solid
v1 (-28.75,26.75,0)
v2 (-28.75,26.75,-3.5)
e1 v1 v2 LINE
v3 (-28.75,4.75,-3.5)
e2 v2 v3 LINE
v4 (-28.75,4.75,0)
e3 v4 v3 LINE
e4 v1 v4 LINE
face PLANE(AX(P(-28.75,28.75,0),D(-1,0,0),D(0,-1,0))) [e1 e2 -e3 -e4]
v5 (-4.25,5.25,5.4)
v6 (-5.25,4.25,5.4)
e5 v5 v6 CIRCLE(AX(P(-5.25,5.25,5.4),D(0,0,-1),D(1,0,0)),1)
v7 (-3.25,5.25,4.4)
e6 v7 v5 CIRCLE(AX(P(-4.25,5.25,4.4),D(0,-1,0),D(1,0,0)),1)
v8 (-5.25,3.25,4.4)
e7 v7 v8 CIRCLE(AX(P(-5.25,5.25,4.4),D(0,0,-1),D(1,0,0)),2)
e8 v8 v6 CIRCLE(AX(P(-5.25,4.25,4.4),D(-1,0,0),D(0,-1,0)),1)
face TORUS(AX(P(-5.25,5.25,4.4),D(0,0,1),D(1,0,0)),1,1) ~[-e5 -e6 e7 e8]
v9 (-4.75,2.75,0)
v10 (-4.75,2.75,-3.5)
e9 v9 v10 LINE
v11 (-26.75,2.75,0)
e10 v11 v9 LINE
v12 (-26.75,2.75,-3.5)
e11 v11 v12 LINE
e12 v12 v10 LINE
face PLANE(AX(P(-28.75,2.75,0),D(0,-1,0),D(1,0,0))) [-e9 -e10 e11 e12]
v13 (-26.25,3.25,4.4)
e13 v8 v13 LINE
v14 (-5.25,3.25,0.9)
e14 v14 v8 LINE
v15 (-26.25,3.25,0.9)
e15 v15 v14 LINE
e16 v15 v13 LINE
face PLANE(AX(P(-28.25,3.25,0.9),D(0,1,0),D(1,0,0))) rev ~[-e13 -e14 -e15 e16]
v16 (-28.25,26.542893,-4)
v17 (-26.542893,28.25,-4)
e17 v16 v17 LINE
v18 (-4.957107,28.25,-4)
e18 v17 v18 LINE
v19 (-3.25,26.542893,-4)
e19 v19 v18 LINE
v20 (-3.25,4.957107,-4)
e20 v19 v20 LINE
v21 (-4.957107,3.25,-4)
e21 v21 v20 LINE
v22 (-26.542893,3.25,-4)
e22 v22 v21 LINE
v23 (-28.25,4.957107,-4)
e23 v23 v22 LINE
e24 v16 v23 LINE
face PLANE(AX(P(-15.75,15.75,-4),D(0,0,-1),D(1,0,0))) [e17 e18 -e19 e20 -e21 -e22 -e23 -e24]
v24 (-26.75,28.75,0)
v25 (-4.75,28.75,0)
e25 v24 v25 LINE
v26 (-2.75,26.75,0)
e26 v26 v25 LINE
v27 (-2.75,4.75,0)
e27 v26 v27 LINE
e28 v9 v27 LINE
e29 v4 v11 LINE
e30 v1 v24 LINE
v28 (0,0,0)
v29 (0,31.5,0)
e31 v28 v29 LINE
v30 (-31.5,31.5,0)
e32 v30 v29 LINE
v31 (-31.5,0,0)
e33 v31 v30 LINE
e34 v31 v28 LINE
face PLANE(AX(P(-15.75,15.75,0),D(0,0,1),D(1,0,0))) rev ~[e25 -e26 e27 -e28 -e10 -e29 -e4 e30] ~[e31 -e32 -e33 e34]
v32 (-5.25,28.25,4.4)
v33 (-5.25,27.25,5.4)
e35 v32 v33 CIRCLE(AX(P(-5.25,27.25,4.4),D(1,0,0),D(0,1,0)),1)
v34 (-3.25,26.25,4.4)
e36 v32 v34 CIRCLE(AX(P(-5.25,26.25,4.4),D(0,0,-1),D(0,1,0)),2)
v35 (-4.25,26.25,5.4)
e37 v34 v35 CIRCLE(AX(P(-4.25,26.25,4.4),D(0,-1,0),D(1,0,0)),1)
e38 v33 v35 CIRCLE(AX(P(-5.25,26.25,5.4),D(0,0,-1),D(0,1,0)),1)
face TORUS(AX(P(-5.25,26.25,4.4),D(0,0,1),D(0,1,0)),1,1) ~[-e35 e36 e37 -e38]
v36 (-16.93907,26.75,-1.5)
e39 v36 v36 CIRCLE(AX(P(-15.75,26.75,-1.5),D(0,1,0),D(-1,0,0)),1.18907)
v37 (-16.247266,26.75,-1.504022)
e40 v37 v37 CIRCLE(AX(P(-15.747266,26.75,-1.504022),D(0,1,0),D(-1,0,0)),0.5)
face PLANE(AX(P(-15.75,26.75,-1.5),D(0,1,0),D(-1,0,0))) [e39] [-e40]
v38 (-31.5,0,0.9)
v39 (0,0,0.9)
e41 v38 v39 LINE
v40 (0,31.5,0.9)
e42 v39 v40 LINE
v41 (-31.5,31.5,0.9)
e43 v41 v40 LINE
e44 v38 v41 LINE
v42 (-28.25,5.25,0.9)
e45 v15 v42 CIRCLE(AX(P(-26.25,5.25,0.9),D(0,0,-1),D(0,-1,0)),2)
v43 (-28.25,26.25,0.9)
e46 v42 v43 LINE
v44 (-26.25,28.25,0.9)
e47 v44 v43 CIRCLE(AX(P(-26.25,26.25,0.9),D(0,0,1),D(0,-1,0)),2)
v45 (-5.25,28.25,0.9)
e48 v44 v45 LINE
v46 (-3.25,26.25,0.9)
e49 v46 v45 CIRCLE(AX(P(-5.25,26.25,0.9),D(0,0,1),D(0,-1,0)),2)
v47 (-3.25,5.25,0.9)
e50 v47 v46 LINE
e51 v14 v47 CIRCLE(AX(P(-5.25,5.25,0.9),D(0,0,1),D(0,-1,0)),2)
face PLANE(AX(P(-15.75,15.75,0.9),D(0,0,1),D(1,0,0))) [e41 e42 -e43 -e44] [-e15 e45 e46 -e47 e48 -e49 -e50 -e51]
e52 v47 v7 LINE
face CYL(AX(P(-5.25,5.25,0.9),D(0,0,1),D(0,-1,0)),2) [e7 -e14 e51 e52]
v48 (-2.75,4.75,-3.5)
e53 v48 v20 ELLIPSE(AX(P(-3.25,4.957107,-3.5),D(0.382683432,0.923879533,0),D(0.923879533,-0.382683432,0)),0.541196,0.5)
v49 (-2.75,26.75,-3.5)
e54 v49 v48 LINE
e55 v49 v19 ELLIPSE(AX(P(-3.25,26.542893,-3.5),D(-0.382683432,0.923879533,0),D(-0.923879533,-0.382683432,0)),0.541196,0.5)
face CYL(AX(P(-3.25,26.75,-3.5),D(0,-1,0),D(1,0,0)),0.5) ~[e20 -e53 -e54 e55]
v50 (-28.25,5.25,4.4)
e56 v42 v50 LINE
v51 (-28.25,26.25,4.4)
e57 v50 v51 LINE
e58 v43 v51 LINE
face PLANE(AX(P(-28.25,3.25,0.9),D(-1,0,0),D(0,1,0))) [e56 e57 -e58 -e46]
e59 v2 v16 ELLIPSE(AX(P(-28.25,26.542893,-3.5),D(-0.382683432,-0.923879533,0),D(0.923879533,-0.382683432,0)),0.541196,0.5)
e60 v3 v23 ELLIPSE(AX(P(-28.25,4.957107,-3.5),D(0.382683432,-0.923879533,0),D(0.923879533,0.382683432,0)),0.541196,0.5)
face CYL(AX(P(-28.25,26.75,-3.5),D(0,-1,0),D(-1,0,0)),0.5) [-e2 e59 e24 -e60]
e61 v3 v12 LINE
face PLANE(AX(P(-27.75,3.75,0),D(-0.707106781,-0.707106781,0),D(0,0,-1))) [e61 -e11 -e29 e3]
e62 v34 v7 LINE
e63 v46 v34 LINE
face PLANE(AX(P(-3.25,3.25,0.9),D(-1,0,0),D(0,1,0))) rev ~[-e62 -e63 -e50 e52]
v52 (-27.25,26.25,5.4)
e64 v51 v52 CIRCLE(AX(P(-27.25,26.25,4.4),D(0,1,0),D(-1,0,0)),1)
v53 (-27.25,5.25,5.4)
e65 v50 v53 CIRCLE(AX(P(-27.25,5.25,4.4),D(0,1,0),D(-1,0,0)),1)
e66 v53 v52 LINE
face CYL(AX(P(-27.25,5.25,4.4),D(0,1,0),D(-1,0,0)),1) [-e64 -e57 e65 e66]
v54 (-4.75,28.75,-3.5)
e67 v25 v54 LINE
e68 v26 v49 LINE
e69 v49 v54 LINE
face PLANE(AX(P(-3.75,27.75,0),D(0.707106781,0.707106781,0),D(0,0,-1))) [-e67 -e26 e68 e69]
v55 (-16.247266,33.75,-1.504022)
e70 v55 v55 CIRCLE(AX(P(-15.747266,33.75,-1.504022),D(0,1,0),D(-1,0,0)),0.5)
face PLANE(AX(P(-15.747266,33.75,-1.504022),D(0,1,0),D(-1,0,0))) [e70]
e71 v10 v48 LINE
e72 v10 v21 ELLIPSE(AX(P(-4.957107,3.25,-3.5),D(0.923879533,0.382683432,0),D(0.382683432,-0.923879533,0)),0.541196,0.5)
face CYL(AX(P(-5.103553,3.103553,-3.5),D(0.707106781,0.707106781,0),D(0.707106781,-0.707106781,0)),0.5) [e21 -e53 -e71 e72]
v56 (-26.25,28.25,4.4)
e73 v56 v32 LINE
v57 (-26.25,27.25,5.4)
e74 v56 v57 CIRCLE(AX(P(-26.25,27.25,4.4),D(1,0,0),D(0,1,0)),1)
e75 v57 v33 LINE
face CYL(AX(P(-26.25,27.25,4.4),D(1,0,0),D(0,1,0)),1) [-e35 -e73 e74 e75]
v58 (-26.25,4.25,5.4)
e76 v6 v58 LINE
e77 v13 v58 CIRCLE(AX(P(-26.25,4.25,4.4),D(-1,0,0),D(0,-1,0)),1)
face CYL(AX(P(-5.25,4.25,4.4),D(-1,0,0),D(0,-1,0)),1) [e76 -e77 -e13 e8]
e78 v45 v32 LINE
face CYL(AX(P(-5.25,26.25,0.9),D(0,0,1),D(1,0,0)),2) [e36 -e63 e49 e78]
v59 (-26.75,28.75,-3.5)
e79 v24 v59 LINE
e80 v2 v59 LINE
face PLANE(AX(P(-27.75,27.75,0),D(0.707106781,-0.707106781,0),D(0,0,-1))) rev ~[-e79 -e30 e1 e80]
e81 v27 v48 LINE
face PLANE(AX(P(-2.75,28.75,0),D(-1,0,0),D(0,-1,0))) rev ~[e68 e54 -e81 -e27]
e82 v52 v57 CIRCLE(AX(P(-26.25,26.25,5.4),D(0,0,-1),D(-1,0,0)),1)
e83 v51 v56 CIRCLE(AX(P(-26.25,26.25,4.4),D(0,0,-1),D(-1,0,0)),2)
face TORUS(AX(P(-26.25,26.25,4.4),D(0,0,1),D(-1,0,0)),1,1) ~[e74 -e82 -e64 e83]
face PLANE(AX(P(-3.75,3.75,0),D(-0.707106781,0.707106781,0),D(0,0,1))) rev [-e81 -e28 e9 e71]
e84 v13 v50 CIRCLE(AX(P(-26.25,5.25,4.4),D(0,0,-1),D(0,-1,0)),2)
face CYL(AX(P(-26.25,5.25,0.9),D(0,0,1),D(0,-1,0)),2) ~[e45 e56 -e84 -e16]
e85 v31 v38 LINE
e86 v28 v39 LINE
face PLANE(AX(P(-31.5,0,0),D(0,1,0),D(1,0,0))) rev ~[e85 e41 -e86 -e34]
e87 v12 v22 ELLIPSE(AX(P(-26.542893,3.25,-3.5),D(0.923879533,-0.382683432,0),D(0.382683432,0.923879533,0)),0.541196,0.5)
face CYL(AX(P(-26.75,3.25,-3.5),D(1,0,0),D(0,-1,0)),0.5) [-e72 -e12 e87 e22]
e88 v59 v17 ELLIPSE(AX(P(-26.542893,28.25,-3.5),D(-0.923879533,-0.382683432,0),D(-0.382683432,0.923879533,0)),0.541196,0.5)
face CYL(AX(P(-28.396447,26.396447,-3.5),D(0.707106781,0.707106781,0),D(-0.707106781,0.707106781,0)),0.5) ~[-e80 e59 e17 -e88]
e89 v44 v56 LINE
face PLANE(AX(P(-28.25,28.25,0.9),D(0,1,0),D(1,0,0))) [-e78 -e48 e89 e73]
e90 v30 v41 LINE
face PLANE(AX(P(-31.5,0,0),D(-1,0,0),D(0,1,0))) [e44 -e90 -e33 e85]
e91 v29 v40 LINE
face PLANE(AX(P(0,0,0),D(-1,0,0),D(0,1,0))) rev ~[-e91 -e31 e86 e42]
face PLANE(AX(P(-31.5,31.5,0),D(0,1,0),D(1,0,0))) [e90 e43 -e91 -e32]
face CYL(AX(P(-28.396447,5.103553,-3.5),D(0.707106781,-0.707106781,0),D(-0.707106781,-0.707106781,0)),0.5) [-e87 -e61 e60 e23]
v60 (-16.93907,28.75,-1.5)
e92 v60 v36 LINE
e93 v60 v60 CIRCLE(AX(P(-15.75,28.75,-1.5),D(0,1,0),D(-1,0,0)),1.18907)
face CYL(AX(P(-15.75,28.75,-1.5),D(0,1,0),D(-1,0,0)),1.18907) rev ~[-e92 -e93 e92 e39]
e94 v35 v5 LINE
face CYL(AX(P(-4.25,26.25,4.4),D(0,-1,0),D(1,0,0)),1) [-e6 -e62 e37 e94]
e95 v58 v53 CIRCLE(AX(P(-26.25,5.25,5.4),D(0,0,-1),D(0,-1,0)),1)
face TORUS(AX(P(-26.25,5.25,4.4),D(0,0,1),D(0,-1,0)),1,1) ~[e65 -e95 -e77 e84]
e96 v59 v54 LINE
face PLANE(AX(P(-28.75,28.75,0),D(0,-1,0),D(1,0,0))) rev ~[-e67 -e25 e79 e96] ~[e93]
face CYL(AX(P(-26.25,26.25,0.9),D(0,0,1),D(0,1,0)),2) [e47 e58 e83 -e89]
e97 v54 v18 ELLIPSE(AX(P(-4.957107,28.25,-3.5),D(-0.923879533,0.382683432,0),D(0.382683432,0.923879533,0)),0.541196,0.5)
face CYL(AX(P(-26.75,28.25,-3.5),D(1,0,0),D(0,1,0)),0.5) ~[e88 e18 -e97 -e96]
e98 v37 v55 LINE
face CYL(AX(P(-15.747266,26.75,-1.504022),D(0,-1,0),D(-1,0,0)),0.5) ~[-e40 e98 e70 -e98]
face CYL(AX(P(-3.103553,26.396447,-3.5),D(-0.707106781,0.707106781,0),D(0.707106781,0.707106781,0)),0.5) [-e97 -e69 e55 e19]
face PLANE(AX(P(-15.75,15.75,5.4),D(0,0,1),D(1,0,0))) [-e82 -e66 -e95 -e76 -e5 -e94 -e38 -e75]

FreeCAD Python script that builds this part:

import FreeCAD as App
import Part
import Sketcher

V = App.Vector
Q = App.Units.Quantity


def edges_at(feature, points):
    """Names of the edges that pass closest to the given points."""
    edges = feature.Shape.Edges
    near = lambda p: min(range(len(edges)), key=lambda i: edges[i].distToShape(Part.Vertex(*p))[0])
    return sorted({f"Edge{near(p) + 1}" for p in points})


def add_polygon(sketch, points):
    """Adds a closed chain of lines whose ends are joined by coincident constraints."""
    first, n = sketch.GeometryCount, len(points)
    for a, b in zip(points, points[1:] + points[:1]):
        sketch.addGeometry(Part.LineSegment(App.Vector(*a, 0), App.Vector(*b, 0)), False)
    for i in range(n):
        sketch.addConstraint(Sketcher.Constraint("Coincident", first + i, 2, first + (i + 1) % n, 1))

doc = App.newDocument("Part")
body = doc.addObject("PartDesign::Body", "Body")

sketch1 = body.newObject("Sketcher::SketchObject", "Sketch")
sketch1.AttachmentSupport = (doc.getObject("XY_Plane"), [""])
sketch1.MapMode = "FlatFace"
add_polygon(sketch1, [(-31.5, 31.5), (-31.5, 0), (0, 0), (0, 31.5)])
sketch1.addConstraint([
    Sketcher.Constraint("Vertical", 0),
    Sketcher.Constraint("Horizontal", 1),
    Sketcher.Constraint("Vertical", 2),
    Sketcher.Constraint("Horizontal", 3),
    Sketcher.Constraint("Coincident", 1, 2, -1, 1),
    Sketcher.Constraint("Equal", 3, 0),
    Sketcher.Constraint("DistanceX", 1, 1, 1, 2, Q("31.5 mm")),
])
pad1 = body.newObject("PartDesign::Pad", "Pad")
pad1.Profile = sketch1
pad1.Length = 0.9

sketch2 = body.newObject("Sketcher::SketchObject", "Sketch001")
sketch2.AttachmentSupport = (doc.getObject("XY_Plane"), [""])
sketch2.MapMode = "FlatFace"
add_polygon(sketch2, [(-28.75, 2.75), (-28.75, 28.75), (-2.75, 28.75), (-2.75, 2.75)])
sketch2.addConstraint([
    Sketcher.Constraint("Vertical", 0),
    Sketcher.Constraint("Horizontal", 1),
    Sketcher.Constraint("Vertical", 2),
    Sketcher.Constraint("Horizontal", 3),
    Sketcher.Constraint("Equal", 3, 0),
    Sketcher.Constraint("DistanceX", 1, 1, 1, 2, Q("26 mm")),
    Sketcher.Constraint("DistanceX", 0, 2, -1, 1, Q("28.75 mm")),
    Sketcher.Constraint("DistanceY", -1, 1, 0, 2, Q("28.75 mm")),
])
pad2 = body.newObject("PartDesign::Pad", "Pad001")
pad2.Profile = sketch2
pad2.Length = 4
pad2.Reversed = True

sketch3 = body.newObject("Sketcher::SketchObject", "Sketch002")
sketch3.AttachmentSupport = (doc.getObject("XY_Plane"), [""])
sketch3.MapMode = "FlatFace"
sketch3.AttachmentOffset = App.Placement(V(0, 0, 0.9), App.Rotation())
add_polygon(sketch3, [(-28.25, 28.25), (-28.25, 3.25), (-3.25, 3.25), (-3.25, 28.25)])
sketch3.addConstraint([
    Sketcher.Constraint("Vertical", 0),
    Sketcher.Constraint("Horizontal", 1),
    Sketcher.Constraint("Vertical", 2),
    Sketcher.Constraint("Horizontal", 3),
    Sketcher.Constraint("Equal", 3, 0),
    Sketcher.Constraint("DistanceX", 1, 1, 1, 2, Q("25 mm")),
    Sketcher.Constraint("DistanceX", 0, 2, -1, 1, Q("28.25 mm")),
    Sketcher.Constraint("DistanceY", -1, 1, 0, 2, Q("3.25 mm")),
])
pad3 = body.newObject("PartDesign::Pad", "Pad002")
pad3.Profile = sketch3
pad3.Length = 4.5
doc.recompute()

fillet = body.newObject("PartDesign::Fillet", "Fillet")
fillet.Base = (pad3, edges_at(pad3, [
    (-3.25, 28.25, 3.15),
    (-3.25, 3.25, 3.15),
    (-28.25, 28.25, 3.15),
    (-28.25, 3.25, 3.15),
]))
fillet.Radius = 2
doc.recompute()

fillet2 = body.newObject("PartDesign::Fillet", "Fillet001")
fillet2.Base = (fillet, edges_at(fillet, [
    (-15.75, 28.25, 5.4),
    (-27.664, 27.664, 5.4),
    (-3.836, 27.664, 5.4),
    (-28.25, 15.75, 5.4),
    (-3.25, 15.75, 5.4),
    (-27.664, 3.836, 5.4),
    (-3.836, 3.836, 5.4),
    (-15.75, 3.25, 5.4),
]))
fillet2.Radius = 1
doc.recompute()

chamfer = body.newObject("PartDesign::Chamfer", "Chamfer")
chamfer.Base = (fillet2, edges_at(fillet2, [
    (-2.75, 2.75, -2),
    (-2.75, 28.75, -2),
    (-28.75, 2.75, -2),
    (-28.75, 28.75, -2),
]))
chamfer.Size = 2
doc.recompute()

fillet3 = body.newObject("PartDesign::Fillet", "Fillet002")
fillet3.Base = (chamfer, edges_at(chamfer, [
    (-15.75, 2.75, -4),
    (-27.75, 3.75, -4),
    (-3.75, 3.75, -4),
    (-28.75, 15.75, -4),
    (-2.75, 15.75, -4),
    (-27.75, 27.75, -4),
    (-3.75, 27.75, -4),
    (-15.75, 28.75, -4),
]))
fillet3.Radius = 0.5

sketch4 = body.newObject("Sketcher::SketchObject", "Sketch003")
sketch4.AttachmentSupport = (doc.getObject("XZ_Plane"), [""])
sketch4.MapMode = "FlatFace"
sketch4.AttachmentOffset = App.Placement(V(0, 0, -28.75), App.Rotation())
sketch4.addGeometry(Part.Circle(V(-15.75, -1.5, 0), V(0, 0, 1), 1.18907), False)
sketch4.addConstraint([
    Sketcher.Constraint("DistanceY", 0, 3, -1, 1, Q("1.5 mm")),
    Sketcher.Constraint("Diameter", 0, Q("2.37814 mm")),
    Sketcher.Constraint("DistanceX", 0, 3, -1, 1, Q("15.75 mm")),
])
pocket1 = body.newObject("PartDesign::Pocket", "Pocket")
pocket1.Profile = sketch4
pocket1.Length = 2
pocket1.Reversed = True

sketch5 = body.newObject("Sketcher::SketchObject", "Sketch004")
sketch5.AttachmentSupport = (doc.getObject("XZ_Plane"), [""])
sketch5.MapMode = "FlatFace"
sketch5.AttachmentOffset = App.Placement(V(0, 0, -26.75), App.Rotation())
sketch5.addGeometry(Part.Circle(V(-15.747266, -1.504022, 0), V(0, 0, 1), 0.5), False)
sketch5.addConstraint([
    Sketcher.Constraint("Diameter", 0, Q("1 mm")),
    Sketcher.Constraint("DistanceX", 0, 3, -1, 1, Q("15.747266 mm")),
    Sketcher.Constraint("DistanceY", 0, 3, -1, 1, Q("1.504022 mm")),
])
pad4 = body.newObject("PartDesign::Pad", "Pad003")
pad4.Profile = sketch5
pad4.Length = 7
pad4.Reversed = True

doc.recompute()
